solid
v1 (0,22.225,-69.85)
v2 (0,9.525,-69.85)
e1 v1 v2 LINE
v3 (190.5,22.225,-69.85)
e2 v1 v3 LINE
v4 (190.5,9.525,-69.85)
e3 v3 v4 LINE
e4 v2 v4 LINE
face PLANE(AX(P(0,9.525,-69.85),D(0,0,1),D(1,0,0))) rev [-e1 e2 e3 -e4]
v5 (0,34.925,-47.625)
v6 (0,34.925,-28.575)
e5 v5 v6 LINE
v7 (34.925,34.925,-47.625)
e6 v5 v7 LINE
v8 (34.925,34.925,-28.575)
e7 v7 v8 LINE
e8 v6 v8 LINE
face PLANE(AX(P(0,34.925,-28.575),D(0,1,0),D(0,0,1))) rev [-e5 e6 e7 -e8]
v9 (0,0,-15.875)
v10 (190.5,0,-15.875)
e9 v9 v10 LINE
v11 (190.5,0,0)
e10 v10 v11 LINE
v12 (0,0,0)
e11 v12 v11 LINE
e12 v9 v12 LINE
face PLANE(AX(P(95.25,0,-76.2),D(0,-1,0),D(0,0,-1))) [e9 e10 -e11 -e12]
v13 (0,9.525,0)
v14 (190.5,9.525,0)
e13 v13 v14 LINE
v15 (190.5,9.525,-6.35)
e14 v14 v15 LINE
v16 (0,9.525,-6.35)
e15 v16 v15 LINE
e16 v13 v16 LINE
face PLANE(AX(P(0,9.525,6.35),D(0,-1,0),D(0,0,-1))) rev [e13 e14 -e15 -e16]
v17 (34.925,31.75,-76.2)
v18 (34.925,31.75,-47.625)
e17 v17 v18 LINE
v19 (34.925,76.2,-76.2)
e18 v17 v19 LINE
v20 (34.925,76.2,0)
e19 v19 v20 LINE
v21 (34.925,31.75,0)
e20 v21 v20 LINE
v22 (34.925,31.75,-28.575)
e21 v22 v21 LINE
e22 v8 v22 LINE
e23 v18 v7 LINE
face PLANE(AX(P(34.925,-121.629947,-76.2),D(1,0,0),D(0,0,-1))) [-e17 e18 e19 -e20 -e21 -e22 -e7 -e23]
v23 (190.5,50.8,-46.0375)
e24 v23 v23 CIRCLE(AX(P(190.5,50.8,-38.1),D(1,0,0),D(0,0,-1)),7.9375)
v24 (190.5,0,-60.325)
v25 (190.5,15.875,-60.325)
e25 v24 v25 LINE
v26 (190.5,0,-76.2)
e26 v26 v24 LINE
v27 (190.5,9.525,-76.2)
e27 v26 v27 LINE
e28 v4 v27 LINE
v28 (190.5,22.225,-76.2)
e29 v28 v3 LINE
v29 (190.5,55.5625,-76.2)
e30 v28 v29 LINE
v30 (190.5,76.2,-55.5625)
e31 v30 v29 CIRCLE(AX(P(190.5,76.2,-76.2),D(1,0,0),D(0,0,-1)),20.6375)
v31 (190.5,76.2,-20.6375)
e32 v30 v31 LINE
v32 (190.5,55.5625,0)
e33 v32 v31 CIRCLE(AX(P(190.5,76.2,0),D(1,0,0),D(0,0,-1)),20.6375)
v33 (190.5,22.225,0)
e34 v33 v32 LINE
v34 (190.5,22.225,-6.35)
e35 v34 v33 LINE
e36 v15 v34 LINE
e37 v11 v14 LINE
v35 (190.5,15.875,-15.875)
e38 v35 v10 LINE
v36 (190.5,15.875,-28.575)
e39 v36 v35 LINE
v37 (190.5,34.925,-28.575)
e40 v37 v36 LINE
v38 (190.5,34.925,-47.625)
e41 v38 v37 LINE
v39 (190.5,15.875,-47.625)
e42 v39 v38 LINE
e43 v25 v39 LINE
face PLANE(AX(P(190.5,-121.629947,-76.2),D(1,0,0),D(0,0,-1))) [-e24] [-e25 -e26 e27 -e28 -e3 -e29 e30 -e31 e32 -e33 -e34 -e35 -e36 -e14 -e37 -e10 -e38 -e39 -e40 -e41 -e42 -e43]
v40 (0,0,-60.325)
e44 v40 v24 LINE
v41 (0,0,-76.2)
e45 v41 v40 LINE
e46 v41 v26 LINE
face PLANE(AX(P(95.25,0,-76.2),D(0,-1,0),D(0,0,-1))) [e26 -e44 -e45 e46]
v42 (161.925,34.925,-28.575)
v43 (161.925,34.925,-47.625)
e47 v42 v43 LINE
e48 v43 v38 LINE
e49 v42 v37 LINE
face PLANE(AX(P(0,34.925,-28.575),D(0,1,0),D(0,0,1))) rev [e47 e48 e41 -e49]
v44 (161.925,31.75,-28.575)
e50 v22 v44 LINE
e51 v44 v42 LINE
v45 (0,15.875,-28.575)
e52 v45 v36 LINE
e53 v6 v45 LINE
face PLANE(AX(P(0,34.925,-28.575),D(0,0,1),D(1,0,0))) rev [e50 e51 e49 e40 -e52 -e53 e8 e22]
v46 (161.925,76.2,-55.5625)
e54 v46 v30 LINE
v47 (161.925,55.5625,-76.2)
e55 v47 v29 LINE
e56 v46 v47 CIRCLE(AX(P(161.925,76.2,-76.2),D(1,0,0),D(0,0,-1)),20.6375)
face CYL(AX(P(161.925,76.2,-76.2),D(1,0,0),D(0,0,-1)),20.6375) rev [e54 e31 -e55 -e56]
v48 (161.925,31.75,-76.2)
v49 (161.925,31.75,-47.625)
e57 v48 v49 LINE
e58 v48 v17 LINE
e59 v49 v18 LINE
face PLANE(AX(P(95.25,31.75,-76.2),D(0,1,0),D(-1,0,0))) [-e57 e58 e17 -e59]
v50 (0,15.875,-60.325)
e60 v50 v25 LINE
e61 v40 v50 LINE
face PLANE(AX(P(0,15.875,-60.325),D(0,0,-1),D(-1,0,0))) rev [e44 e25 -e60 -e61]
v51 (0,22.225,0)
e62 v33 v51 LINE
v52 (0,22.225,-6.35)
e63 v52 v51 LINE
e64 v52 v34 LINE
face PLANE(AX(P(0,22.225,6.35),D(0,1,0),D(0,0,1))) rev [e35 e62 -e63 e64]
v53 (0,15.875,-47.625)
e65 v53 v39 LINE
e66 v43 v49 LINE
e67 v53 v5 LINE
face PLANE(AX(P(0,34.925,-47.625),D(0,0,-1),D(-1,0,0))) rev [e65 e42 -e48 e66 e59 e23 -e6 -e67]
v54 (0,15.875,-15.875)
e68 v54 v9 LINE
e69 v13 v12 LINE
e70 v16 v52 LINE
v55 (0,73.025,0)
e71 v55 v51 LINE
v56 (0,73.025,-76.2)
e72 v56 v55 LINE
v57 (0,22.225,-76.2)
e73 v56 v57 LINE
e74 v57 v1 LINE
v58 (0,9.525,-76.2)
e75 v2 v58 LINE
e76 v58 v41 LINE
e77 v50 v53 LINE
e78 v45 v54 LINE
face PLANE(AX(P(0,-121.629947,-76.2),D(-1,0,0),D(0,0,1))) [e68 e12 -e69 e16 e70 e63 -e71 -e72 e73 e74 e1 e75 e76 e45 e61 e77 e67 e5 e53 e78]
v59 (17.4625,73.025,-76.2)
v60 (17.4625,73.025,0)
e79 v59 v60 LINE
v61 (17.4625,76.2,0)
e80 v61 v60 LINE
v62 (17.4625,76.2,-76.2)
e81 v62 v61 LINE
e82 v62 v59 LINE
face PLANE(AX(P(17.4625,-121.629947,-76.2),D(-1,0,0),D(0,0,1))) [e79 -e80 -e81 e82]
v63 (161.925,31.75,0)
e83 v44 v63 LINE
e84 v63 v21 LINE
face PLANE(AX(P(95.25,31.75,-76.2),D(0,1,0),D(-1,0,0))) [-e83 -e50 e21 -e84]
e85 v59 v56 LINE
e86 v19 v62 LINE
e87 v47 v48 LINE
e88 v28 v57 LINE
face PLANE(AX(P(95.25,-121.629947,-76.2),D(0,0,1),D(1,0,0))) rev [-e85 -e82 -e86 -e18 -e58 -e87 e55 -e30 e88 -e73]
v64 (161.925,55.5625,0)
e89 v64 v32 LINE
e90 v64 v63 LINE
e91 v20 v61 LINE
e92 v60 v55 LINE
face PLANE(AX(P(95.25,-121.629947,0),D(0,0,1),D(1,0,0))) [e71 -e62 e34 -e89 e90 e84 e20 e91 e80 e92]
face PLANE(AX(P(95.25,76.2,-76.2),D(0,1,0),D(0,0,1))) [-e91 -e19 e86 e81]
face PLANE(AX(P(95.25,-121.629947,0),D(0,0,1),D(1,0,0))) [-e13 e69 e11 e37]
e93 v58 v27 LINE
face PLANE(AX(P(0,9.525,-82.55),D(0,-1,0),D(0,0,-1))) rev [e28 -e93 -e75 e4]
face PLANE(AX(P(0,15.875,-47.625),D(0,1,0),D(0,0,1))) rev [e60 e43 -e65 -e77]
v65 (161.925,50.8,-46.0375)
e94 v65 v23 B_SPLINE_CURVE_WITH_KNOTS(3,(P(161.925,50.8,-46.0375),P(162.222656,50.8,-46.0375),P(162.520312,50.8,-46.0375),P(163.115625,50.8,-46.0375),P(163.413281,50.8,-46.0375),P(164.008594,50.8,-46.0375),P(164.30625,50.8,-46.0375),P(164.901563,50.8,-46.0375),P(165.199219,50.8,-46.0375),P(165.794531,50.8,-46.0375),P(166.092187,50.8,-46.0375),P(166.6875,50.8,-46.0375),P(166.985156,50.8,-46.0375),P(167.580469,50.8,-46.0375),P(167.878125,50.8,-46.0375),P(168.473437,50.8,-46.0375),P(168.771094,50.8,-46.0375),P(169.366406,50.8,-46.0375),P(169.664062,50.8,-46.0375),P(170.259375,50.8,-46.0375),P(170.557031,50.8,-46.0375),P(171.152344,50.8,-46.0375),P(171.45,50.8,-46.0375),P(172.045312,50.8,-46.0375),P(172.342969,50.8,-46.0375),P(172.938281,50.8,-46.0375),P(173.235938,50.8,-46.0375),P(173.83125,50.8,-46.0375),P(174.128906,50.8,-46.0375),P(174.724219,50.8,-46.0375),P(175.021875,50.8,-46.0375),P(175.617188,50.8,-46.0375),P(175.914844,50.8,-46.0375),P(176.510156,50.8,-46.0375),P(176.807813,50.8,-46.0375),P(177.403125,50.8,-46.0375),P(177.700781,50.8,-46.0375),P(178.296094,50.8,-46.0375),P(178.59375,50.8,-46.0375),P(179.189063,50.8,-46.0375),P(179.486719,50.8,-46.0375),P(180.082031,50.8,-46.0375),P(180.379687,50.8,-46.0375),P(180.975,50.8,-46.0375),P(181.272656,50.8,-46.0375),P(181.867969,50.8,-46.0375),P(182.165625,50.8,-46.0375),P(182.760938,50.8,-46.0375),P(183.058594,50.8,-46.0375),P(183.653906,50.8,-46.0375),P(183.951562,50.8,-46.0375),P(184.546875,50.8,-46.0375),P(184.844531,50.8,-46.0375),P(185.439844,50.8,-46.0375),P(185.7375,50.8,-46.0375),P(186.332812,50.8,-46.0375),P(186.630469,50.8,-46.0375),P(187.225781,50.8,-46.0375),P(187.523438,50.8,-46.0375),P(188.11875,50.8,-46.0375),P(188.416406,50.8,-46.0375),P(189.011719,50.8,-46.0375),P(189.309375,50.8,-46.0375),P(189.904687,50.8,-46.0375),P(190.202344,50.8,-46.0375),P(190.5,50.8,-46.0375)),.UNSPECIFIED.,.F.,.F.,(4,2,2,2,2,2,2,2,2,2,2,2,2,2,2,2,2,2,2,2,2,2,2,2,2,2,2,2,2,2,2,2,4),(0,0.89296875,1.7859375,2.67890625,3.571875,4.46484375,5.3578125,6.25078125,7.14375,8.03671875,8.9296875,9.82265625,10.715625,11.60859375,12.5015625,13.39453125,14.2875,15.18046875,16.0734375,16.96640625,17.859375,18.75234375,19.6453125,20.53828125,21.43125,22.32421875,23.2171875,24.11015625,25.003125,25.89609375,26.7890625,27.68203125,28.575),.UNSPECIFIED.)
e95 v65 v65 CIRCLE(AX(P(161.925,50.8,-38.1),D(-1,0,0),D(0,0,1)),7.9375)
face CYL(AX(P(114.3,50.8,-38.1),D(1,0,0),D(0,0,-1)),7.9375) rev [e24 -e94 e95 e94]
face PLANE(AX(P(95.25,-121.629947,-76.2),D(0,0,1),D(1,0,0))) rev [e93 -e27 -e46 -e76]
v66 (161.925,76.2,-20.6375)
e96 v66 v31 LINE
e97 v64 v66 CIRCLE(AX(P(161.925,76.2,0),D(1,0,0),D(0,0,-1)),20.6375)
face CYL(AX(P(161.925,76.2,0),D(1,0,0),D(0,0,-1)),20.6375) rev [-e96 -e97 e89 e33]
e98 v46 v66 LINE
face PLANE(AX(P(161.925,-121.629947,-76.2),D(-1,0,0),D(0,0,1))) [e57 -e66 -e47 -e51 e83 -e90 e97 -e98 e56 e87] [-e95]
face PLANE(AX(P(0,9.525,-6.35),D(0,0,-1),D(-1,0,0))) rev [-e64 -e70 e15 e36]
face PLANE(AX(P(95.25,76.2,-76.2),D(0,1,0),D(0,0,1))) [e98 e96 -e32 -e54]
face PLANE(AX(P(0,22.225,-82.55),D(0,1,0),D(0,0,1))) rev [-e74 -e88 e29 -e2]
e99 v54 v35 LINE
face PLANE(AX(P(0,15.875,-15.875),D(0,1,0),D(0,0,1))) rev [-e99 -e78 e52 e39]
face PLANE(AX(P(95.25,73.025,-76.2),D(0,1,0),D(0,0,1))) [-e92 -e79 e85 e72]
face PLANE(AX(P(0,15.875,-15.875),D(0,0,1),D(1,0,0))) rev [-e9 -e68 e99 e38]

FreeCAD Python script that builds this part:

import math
import FreeCAD as App
import Part
import Sketcher
from FreeCAD import Vector
Q = App.Units.Quantity


def add_polygon(sketch, points):
    """Adds a closed chain of lines whose ends are joined by coincident constraints."""
    first, n = sketch.GeometryCount, len(points)
    for a, b in zip(points, points[1:] + points[:1]):
        sketch.addGeometry(Part.LineSegment(App.Vector(*a, 0), App.Vector(*b, 0)), False)
    for i in range(n):
        sketch.addConstraint(Sketcher.Constraint("Coincident", first + i, 2, first + (i + 1) % n, 1))

doc = App.newDocument("Part")
body = doc.addObject("PartDesign::Body", "Body")

sketch1 = body.newObject("Sketcher::SketchObject", "Sketch")
sketch1.AttachmentSupport = (doc.getObject("XY_Plane"), [""])
sketch1.MapMode = "FlatFace"
add_polygon(sketch1, [(17.4625, 76.2), (17.4625, 73.025), (0, 73.025), (0, 0), (190.5, 0), (190.5, 76.2), (161.925, 76.2), (161.925, 31.75), (34.925, 31.75), (34.925, 76.2)])
sketch1.addConstraint(Sketcher.Constraint("Vertical", 0))
sketch1.addConstraint(Sketcher.Constraint("Horizontal", 1))
sketch1.addConstraint(Sketcher.Constraint("Vertical", 2))
sketch1.addConstraint(Sketcher.Constraint("Horizontal", 3))
sketch1.addConstraint(Sketcher.Constraint("Vertical", 4))
sketch1.addConstraint(Sketcher.Constraint("Horizontal", 5))
sketch1.addConstraint(Sketcher.Constraint("Vertical", 6))
sketch1.addConstraint(Sketcher.Constraint("Horizontal", 7))
sketch1.addConstraint(Sketcher.Constraint("Vertical", 8))
sketch1.addConstraint(Sketcher.Constraint("Horizontal", 9))
sketch1.addConstraint(Sketcher.Constraint("Coincident", 2, 2, -1, 1))
sketch1.addConstraint(Sketcher.Constraint("Horizontal", 5, 2, 8, 2))
sketch1.addConstraint(Sketcher.Constraint("Equal", 1, 9))
sketch1.addConstraint(Sketcher.Constraint("DistanceX", 7, 2, 7, 1, Q("5 in")))
sketch1.addConstraint(Sketcher.Constraint("DistanceY", 4, 1, 4, 2, Q("3 in")))
sketch1.addConstraint(Sketcher.Constraint("DistanceX", 3, 1, 3, 2, Q("7.5 in")))
sketch1.addConstraint(Sketcher.Constraint("DistanceY", 6, 2, 6, 1, Q("1.75 in")))
sketch1.addConstraint(Sketcher.Constraint("DistanceX", 1, 2, 1, 1, Q("0.6875 in")))
sketch1.addConstraint(Sketcher.Constraint("DistanceY", 0, 2, 0, 1, Q("0.125 in")))
pad1 = body.newObject("PartDesign::Pad", "Pad")
pad1.Profile = sketch1
pad1.Length = Q("3 in")
pad1.Reversed = True

sketch2 = body.newObject("Sketcher::SketchObject", "Sketch001")
sketch2.AttachmentSupport = (doc.getObject("YZ_Plane"), [""])
sketch2.MapMode = "FlatFace"
sketch2.AttachmentOffset = App.Placement(Vector(0, 0, 7.5 * 25.4), App.Rotation())
sketch2.addGeometry(Part.LineSegment(Vector(76.2, 0, 0), Vector(55.5625, 0, 0)), False)
sketch2.addGeometry(Part.ArcOfCircle(Part.Circle(Vector(76.2, 0, 0), Vector(0, 0, 1), 20.6375), math.radians(180), math.radians(270)), False)
sketch2.addGeometry(Part.LineSegment(Vector(76.2, -20.6375, 0), Vector(76.2, 0, 0)), False)
sketch2.addGeometry(Part.LineSegment(Vector(76.2, -76.2, 0), Vector(76.2, -55.5625, 0)), False)
sketch2.addGeometry(Part.ArcOfCircle(Part.Circle(Vector(76.2, -76.2, 0), Vector(0, 0, 1), 20.6375), math.radians(90), math.radians(180)), False)
sketch2.addGeometry(Part.LineSegment(Vector(55.5625, -76.2, 0), Vector(76.2, -76.2, 0)), False)
sketch2.addConstraint(Sketcher.Constraint("Coincident", 0, 2, 1, 1))
sketch2.addConstraint(Sketcher.Constraint("Coincident", 1, 2, 2, 1))
sketch2.addConstraint(Sketcher.Constraint("Coincident", 2, 2, 0, 1))
sketch2.addConstraint(Sketcher.Constraint("Coincident", 3, 2, 4, 1))
sketch2.addConstraint(Sketcher.Constraint("Coincident", 4, 2, 5, 1))
sketch2.addConstraint(Sketcher.Constraint("Coincident", 5, 2, 3, 1))
sketch2.addConstraint(Sketcher.Constraint("Horizontal", 0))
sketch2.addConstraint(Sketcher.Constraint("Vertical", 2))
sketch2.addConstraint(Sketcher.Constraint("Vertical", 3))
sketch2.addConstraint(Sketcher.Constraint("Horizontal", 5))
sketch2.addConstraint(Sketcher.Constraint("Coincident", 2, 2, 1, 3))
sketch2.addConstraint(Sketcher.Constraint("Coincident", 5, 2, 4, 3))
sketch2.addConstraint(Sketcher.Constraint("Equal", 1, 4))
sketch2.addConstraint(Sketcher.Constraint("PointOnObject", 1, 3, -1))
sketch2.addConstraint(Sketcher.Constraint("Vertical", 1, 3, 4, 3))
sketch2.addConstraint(Sketcher.Constraint("DistanceX", -1, 1, 1, 3, Q("3 in")))
sketch2.addConstraint(Sketcher.Constraint("DistanceY", 4, 3, -1, 1, Q("3 in")))
sketch2.addConstraint(Sketcher.Constraint("Radius", 1, Q("0.8125 in")))
pocket1 = body.newObject("PartDesign::Pocket", "Pocket")
pocket1.Profile = sketch2
pocket1.Length = Q("1.125 in")

sketch3 = body.newObject("Sketcher::SketchObject", "Sketch002")
sketch3.AttachmentSupport = (doc.getObject("YZ_Plane"), [""])
sketch3.MapMode = "FlatFace"
sketch3.AttachmentOffset = App.Placement(Vector(0, 0, 7.5 * 25.4), App.Rotation())
sketch3.addGeometry(Part.Circle(Vector(50.8, -38.1, 0), Vector(0, 0, 1), 7.9375), False)
sketch3.addConstraint(Sketcher.Constraint("Diameter", 0, Q("0.625 in")))
sketch3.addConstraint(Sketcher.Constraint("DistanceX", -1, 1, 0, 3, Q("2 in")))
sketch3.addConstraint(Sketcher.Constraint("DistanceY", 0, 3, -1, 1, Q("1.5 in")))
pocket2 = body.newObject("PartDesign::Pocket", "Pocket001")
pocket2.Profile = sketch3
pocket2.Length = Q("3 in")

sketch4 = body.newObject("Sketcher::SketchObject", "Sketch003")
sketch4.AttachmentSupport = (doc.getObject("YZ_Plane"), [""])
sketch4.MapMode = "FlatFace"
sketch4.AttachmentOffset = App.Placement(Vector(0, 0, 7.5 * 25.4), App.Rotation())
add_polygon(sketch4, [(15.875, -28.575), (15.875, -15.875), (0, -15.875), (0, -60.325), (15.875, -60.325), (15.875, -47.625), (34.925, -47.625), (34.925, -28.575)])
sketch4.addConstraint(Sketcher.Constraint("Vertical", 0))
sketch4.addConstraint(Sketcher.Constraint("Horizontal", 1))
sketch4.addConstraint(Sketcher.Constraint("Vertical", 2))
sketch4.addConstraint(Sketcher.Constraint("Horizontal", 3))
sketch4.addConstraint(Sketcher.Constraint("Vertical", 4))
sketch4.addConstraint(Sketcher.Constraint("Horizontal", 5))
sketch4.addConstraint(Sketcher.Constraint("Vertical", 6))
sketch4.addConstraint(Sketcher.Constraint("Horizontal", 7))
sketch4.addConstraint(Sketcher.Constraint("PointOnObject", 1, 2, -2))
sketch4.addConstraint(Sketcher.Constraint("Vertical", 0, 2, 3, 2))
sketch4.addConstraint(Sketcher.Constraint("Equal", 0, 4))
sketch4.addConstraint(Sketcher.Constraint("Equal", 7, 6))
sketch4.addConstraint(Sketcher.Constraint("DistanceY", 0, 1, 0, 2, Q("0.5 in")))
sketch4.addConstraint(Sketcher.Constraint("DistanceX", 5, 1, 5, 2, Q("0.75 in")))
sketch4.addConstraint(Sketcher.Constraint("DistanceX", 1, 2, 1, 1, Q("0.625 in")))
sketch4.addConstraint(Sketcher.Constraint("DistanceY", 0, 2, -1, 1, Q("0.625 in")))
pocket3 = body.newObject("PartDesign::Pocket", "Pocket002")
pocket3.Profile = sketch4
pocket3.Type = "ThroughAll"

sketch5 = body.newObject("Sketcher::SketchObject", "Sketch004")
sketch5.AttachmentSupport = (doc.getObject("YZ_Plane"), [""])
sketch5.MapMode = "FlatFace"
sketch5.AttachmentOffset = App.Placement(Vector(0, 0, 7.5 * 25.4), App.Rotation())
add_polygon(sketch5, [(22.225, 6.35), (9.525, 6.35), (9.525, -6.35), (22.225, -6.35)])
add_polygon(sketch5, [(22.225, -69.85), (9.525, -69.85), (9.525, -82.55), (22.225, -82.55)])
sketch5.addConstraint(Sketcher.Constraint("Horizontal", 0))
sketch5.addConstraint(Sketcher.Constraint("Vertical", 1))
sketch5.addConstraint(Sketcher.Constraint("Horizontal", 2))
sketch5.addConstraint(Sketcher.Constraint("Vertical", 3))
sketch5.addConstraint(Sketcher.Constraint("Horizontal", 4))
sketch5.addConstraint(Sketcher.Constraint("Vertical", 5))
sketch5.addConstraint(Sketcher.Constraint("Horizontal", 6))
sketch5.addConstraint(Sketcher.Constraint("Vertical", 7))
sketch5.addConstraint(Sketcher.Constraint("Vertical", 1, 2, 4, 2))
sketch5.addConstraint(Sketcher.Constraint("Vertical", 3, 2, 6, 2))
sketch5.addConstraint(Sketcher.Constraint("Equal", 6, 1))
sketch5.addConstraint(Sketcher.Constraint("Equal", 3, 5))
sketch5.addConstraint(Sketcher.Constraint("DistanceX", 0, 2, 0, 1, Q("0.5 in")))
sketch5.addConstraint(Sketcher.Constraint("DistanceY", 4, 2, 0, 2, Q("3 in")))
sketch5.addConstraint(Sketcher.Constraint("DistanceY", -1, 1, 0, 2, Q("0.25 in")))
sketch5.addConstraint(Sketcher.Constraint("DistanceX", -1, 1, 0, 2, Q("0.375 in")))
pocket4 = body.newObject("PartDesign::Pocket", "Pocket003")
pocket4.Profile = sketch5
pocket4.Type = "ThroughAll"

doc.recompute()
